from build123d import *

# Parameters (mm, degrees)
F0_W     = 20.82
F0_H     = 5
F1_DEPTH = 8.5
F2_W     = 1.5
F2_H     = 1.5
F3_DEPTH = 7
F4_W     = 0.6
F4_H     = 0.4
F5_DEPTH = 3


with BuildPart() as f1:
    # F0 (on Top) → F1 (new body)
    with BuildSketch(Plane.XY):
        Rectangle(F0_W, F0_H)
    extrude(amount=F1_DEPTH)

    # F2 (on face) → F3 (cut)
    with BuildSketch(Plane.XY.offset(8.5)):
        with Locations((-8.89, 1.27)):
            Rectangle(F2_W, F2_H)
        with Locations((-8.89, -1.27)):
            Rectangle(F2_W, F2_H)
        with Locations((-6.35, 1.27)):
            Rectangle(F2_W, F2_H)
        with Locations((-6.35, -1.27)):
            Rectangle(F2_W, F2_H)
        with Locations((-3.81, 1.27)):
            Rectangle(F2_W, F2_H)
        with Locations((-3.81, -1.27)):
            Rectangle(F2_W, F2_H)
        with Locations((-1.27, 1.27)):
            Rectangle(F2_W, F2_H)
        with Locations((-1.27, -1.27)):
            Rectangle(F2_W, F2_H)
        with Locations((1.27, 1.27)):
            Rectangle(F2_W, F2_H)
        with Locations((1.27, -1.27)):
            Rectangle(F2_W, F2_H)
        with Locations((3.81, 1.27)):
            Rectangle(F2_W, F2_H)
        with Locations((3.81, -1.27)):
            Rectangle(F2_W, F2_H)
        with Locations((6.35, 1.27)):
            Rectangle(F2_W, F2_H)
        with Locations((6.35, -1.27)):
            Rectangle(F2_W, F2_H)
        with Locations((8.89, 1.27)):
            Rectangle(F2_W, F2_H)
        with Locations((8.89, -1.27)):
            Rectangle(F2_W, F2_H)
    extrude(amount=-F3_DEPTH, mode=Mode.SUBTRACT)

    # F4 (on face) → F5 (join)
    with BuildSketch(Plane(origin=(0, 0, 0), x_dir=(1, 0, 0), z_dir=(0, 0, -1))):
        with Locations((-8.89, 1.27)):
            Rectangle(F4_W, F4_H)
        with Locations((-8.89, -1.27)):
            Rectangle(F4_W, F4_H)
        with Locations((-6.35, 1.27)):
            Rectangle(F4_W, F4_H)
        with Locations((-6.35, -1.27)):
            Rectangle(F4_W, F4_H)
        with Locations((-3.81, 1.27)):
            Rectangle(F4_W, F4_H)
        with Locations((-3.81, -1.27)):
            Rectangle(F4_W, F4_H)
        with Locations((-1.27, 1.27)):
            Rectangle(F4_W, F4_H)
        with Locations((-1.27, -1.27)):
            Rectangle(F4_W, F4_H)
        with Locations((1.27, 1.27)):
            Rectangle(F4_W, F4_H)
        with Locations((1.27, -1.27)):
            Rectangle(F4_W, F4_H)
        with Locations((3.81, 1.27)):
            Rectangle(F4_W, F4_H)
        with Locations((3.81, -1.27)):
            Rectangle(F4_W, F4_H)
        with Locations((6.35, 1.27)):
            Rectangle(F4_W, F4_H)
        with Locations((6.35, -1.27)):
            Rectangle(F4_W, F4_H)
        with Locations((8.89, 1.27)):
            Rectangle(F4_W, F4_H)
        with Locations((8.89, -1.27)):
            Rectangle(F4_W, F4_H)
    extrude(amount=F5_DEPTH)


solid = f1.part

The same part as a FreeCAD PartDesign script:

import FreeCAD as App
import Part
import Sketcher

V = App.Vector

doc = App.newDocument("Part")
body = doc.addObject("PartDesign::Body", "Body")

# Sketch on XY plane
sketch1 = body.newObject("Sketcher::SketchObject", "Sketch")
sketch1.AttachmentSupport = (doc.getObject("XY_Plane"), [""])
sketch1.MapMode = "FlatFace"
sketch1.addGeometry([
    Part.LineSegment(V(-10, 2, 0), V(-10, -2, 0)),
    Part.LineSegment(V(-10, -2, 0), V(10, -2, 0)),
    Part.LineSegment(V(10, -2, 0), V(10, 2, 0)),
    Part.LineSegment(V(10, 2, 0), V(-10, 2, 0)),
], False)
sketch1.addConstraint([
    Sketcher.Constraint("Coincident", 0, 2, 1, 1),
    Sketcher.Constraint("Coincident", 1, 2, 2, 1),
    Sketcher.Constraint("Coincident", 2, 2, 3, 1),
    Sketcher.Constraint("Coincident", 3, 2, 0, 1),
    Sketcher.Constraint("Vertical", 0),
    Sketcher.Constraint("Horizontal", 1),
    Sketcher.Constraint("Vertical", 2),
    Sketcher.Constraint("Horizontal", 3),
    Sketcher.Constraint("Symmetric", 0, 2, 2, 2, -1, 1),
    Sketcher.Constraint("DistanceY", 0, 2, 0, 1, 5.0),
    Sketcher.Constraint("DistanceX", 1, 1, 1, 2, 20.82),
])
pad1 = body.newObject("PartDesign::Pad", "Pad")
pad1.Profile = sketch1
pad1.Length = 8.5

# Sketch on XY plane
sketch2 = body.newObject("Sketcher::SketchObject", "Sketch001")
sketch2.AttachmentSupport = (doc.getObject("XY_Plane"), [""])
sketch2.MapMode = "FlatFace"
sketch2.AttachmentOffset = App.Placement(V(0, 0, 8.5), App.Rotation())
sketch2.addGeometry([
    Part.LineSegment(V(-9.6, 2, 0), V(-9.6, 0.5, 0)),  # 0
    Part.LineSegment(V(-9.6, 0.5, 0), V(-8.1, 0.5, 0)),  # 1
    Part.LineSegment(V(-8.1, 0.5, 0), V(-8.1, 2, 0)),  # 2
    Part.LineSegment(V(-8.1, 2, 0), V(-9.6, 2, 0)),  # 3
    Part.LineSegment(V(-9.6, -0.5, 0), V(-9.6, -2, 0)),  # 4
    Part.LineSegment(V(-9.6, -2, 0), V(-8.1, -2, 0)),  # 5
    Part.LineSegment(V(-8.1, -2, 0), V(-8.1, -0.5, 0)),  # 6
    Part.LineSegment(V(-8.1, -0.5, 0), V(-9.6, -0.5, 0)),  # 7
    Part.LineSegment(V(-7.1, 2, 0), V(-7.1, 0.5, 0)),  # 8
    Part.LineSegment(V(-7.1, 0.5, 0), V(-5.6, 0.5, 0)),  # 9
    Part.LineSegment(V(-5.6, 0.5, 0), V(-5.6, 2, 0)),  # 10
    Part.LineSegment(V(-5.6, 2, 0), V(-7.1, 2, 0)),  # 11
    Part.LineSegment(V(-7.1, -0.5, 0), V(-7.1, -2, 0)),  # 12
    Part.LineSegment(V(-7.1, -2, 0), V(-5.6, -2, 0)),  # 13
    Part.LineSegment(V(-5.6, -2, 0), V(-5.6, -0.5, 0)),  # 14
    Part.LineSegment(V(-5.6, -0.5, 0), V(-7.1, -0.5, 0)),  # 15
    Part.LineSegment(V(-4.6, 2, 0), V(-4.6, 0.5, 0)),  # 16
    Part.LineSegment(V(-4.6, 0.5, 0), V(-3.1, 0.5, 0)),  # 17
    Part.LineSegment(V(-3.1, 0.5, 0), V(-3.1, 2, 0)),  # 18
    Part.LineSegment(V(-3.1, 2, 0), V(-4.6, 2, 0)),  # 19
    Part.LineSegment(V(-4.6, -0.5, 0), V(-4.6, -2, 0)),  # 20
    Part.LineSegment(V(-4.6, -2, 0), V(-3.1, -2, 0)),  # 21
    Part.LineSegment(V(-3.1, -2, 0), V(-3.1, -0.5, 0)),  # 22
    Part.LineSegment(V(-3.1, -0.5, 0), V(-4.6, -0.5, 0)),  # 23
    Part.LineSegment(V(-2, 2, 0), V(-2, 0.5, 0)),  # 24
    Part.LineSegment(V(-2, 0.5, 0), V(-0.5, 0.5, 0)),  # 25
    Part.LineSegment(V(-0.5, 0.5, 0), V(-0.5, 2, 0)),  # 26
    Part.LineSegment(V(-0.5, 2, 0), V(-2, 2, 0)),  # 27
    Part.LineSegment(V(-2, -0.5, 0), V(-2, -2, 0)),  # 28
    Part.LineSegment(V(-2, -2, 0), V(-0.5, -2, 0)),  # 29
    Part.LineSegment(V(-0.5, -2, 0), V(-0.5, -0.5, 0)),  # 30
    Part.LineSegment(V(-0.5, -0.5, 0), V(-2, -0.5, 0)),  # 31
    Part.LineSegment(V(0.5, 2, 0), V(0.5, 0.5, 0)),  # 32
    Part.LineSegment(V(0.5, 0.5, 0), V(2, 0.5, 0)),  # 33
    Part.LineSegment(V(2, 0.5, 0), V(2, 2, 0)),  # 34
    Part.LineSegment(V(2, 2, 0), V(0.5, 2, 0)),  # 35
    Part.LineSegment(V(0.5, -0.5, 0), V(0.5, -2, 0)),  # 36
    Part.LineSegment(V(0.5, -2, 0), V(2, -2, 0)),  # 37
    Part.LineSegment(V(2, -2, 0), V(2, -0.5, 0)),  # 38
    Part.LineSegment(V(2, -0.5, 0), V(0.5, -0.5, 0)),  # 39
    Part.LineSegment(V(3.1, 2, 0), V(3.1, 0.5, 0)),  # 40
    Part.LineSegment(V(3.1, 0.5, 0), V(4.6, 0.5, 0)),  # 41
    Part.LineSegment(V(4.6, 0.5, 0), V(4.6, 2, 0)),  # 42
    Part.LineSegment(V(4.6, 2, 0), V(3.1, 2, 0)),  # 43
    Part.LineSegment(V(3.1, -0.5, 0), V(3.1, -2, 0)),  # 44
    Part.LineSegment(V(3.1, -2, 0), V(4.6, -2, 0)),  # 45
    Part.LineSegment(V(4.6, -2, 0), V(4.6, -0.5, 0)),  # 46
    Part.LineSegment(V(4.6, -0.5, 0), V(3.1, -0.5, 0)),  # 47
    Part.LineSegment(V(5.6, 2, 0), V(5.6, 0.5, 0)),  # 48
    Part.LineSegment(V(5.6, 0.5, 0), V(7.1, 0.5, 0)),  # 49
    Part.LineSegment(V(7.1, 0.5, 0), V(7.1, 2, 0)),  # 50
    Part.LineSegment(V(7.1, 2, 0), V(5.6, 2, 0)),  # 51
    Part.LineSegment(V(5.6, -0.5, 0), V(5.6, -2, 0)),  # 52
    Part.LineSegment(V(5.6, -2, 0), V(7.1, -2, 0)),  # 53
    Part.LineSegment(V(7.1, -2, 0), V(7.1, -0.5, 0)),  # 54
    Part.LineSegment(V(7.1, -0.5, 0), V(5.6, -0.5, 0)),  # 55
    Part.LineSegment(V(8.1, 2, 0), V(8.1, 0.5, 0)),  # 56
    Part.LineSegment(V(8.1, 0.5, 0), V(9.6, 0.5, 0)),  # 57
    Part.LineSegment(V(9.6, 0.5, 0), V(9.6, 2, 0)),  # 58
    Part.LineSegment(V(9.6, 2, 0), V(8.1, 2, 0)),  # 59
    Part.LineSegment(V(8.1, -0.5, 0), V(8.1, -2, 0)),  # 60
    Part.LineSegment(V(8.1, -2, 0), V(9.6, -2, 0)),  # 61
    Part.LineSegment(V(9.6, -2, 0), V(9.6, -0.5, 0)),  # 62
    Part.LineSegment(V(9.6, -0.5, 0), V(8.1, -0.5, 0)),  # 63
], False)
sketch2.addConstraint([
    Sketcher.Constraint("Coincident", 0, 2, 1, 1),
    Sketcher.Constraint("Coincident", 1, 2, 2, 1),
    Sketcher.Constraint("Coincident", 2, 2, 3, 1),
    Sketcher.Constraint("Coincident", 3, 2, 0, 1),
    Sketcher.Constraint("Coincident", 4, 2, 5, 1),
    Sketcher.Constraint("Coincident", 5, 2, 6, 1),
    Sketcher.Constraint("Coincident", 6, 2, 7, 1),
    Sketcher.Constraint("Coincident", 7, 2, 4, 1),
    Sketcher.Constraint("Coincident", 8, 2, 9, 1),
    Sketcher.Constraint("Coincident", 9, 2, 10, 1),
    Sketcher.Constraint("Coincident", 10, 2, 11, 1),
    Sketcher.Constraint("Coincident", 11, 2, 8, 1),
    Sketcher.Constraint("Coincident", 12, 2, 13, 1),
    Sketcher.Constraint("Coincident", 13, 2, 14, 1),
    Sketcher.Constraint("Coincident", 14, 2, 15, 1),
    Sketcher.Constraint("Coincident", 15, 2, 12, 1),
    Sketcher.Constraint("Coincident", 16, 2, 17, 1),
    Sketcher.Constraint("Coincident", 17, 2, 18, 1),
    Sketcher.Constraint("Coincident", 18, 2, 19, 1),
    Sketcher.Constraint("Coincident", 19, 2, 16, 1),
    Sketcher.Constraint("Coincident", 20, 2, 21, 1),
    Sketcher.Constraint("Coincident", 21, 2, 22, 1),
    Sketcher.Constraint("Coincident", 22, 2, 23, 1),
    Sketcher.Constraint("Coincident", 23, 2, 20, 1),
    Sketcher.Constraint("Coincident", 24, 2, 25, 1),
    Sketcher.Constraint("Coincident", 25, 2, 26, 1),
    Sketcher.Constraint("Coincident", 26, 2, 27, 1),
    Sketcher.Constraint("Coincident", 27, 2, 24, 1),
    Sketcher.Constraint("Coincident", 28, 2, 29, 1),
    Sketcher.Constraint("Coincident", 29, 2, 30, 1),
    Sketcher.Constraint("Coincident", 30, 2, 31, 1),
    Sketcher.Constraint("Coincident", 31, 2, 28, 1),
    Sketcher.Constraint("Coincident", 32, 2, 33, 1),
    Sketcher.Constraint("Coincident", 33, 2, 34, 1),
    Sketcher.Constraint("Coincident", 34, 2, 35, 1),
    Sketcher.Constraint("Coincident", 35, 2, 32, 1),
    Sketcher.Constraint("Coincident", 36, 2, 37, 1),
    Sketcher.Constraint("Coincident", 37, 2, 38, 1),
    Sketcher.Constraint("Coincident", 38, 2, 39, 1),
    Sketcher.Constraint("Coincident", 39, 2, 36, 1),
    Sketcher.Constraint("Coincident", 40, 2, 41, 1),
    Sketcher.Constraint("Coincident", 41, 2, 42, 1),
    Sketcher.Constraint("Coincident", 42, 2, 43, 1),
    Sketcher.Constraint("Coincident", 43, 2, 40, 1),
    Sketcher.Constraint("Coincident", 44, 2, 45, 1),
    Sketcher.Constraint("Coincident", 45, 2, 46, 1),
    Sketcher.Constraint("Coincident", 46, 2, 47, 1),
    Sketcher.Constraint("Coincident", 47, 2, 44, 1),
    Sketcher.Constraint("Coincident", 48, 2, 49, 1),
    Sketcher.Constraint("Coincident", 49, 2, 50, 1),
    Sketcher.Constraint("Coincident", 50, 2, 51, 1),
    Sketcher.Constraint("Coincident", 51, 2, 48, 1),
    Sketcher.Constraint("Coincident", 52, 2, 53, 1),
    Sketcher.Constraint("Coincident", 53, 2, 54, 1),
    Sketcher.Constraint("Coincident", 54, 2, 55, 1),
    Sketcher.Constraint("Coincident", 55, 2, 52, 1),
    Sketcher.Constraint("Coincident", 56, 2, 57, 1),
    Sketcher.Constraint("Coincident", 57, 2, 58, 1),
    Sketcher.Constraint("Coincident", 58, 2, 59, 1),
    Sketcher.Constraint("Coincident", 59, 2, 56, 1),
    Sketcher.Constraint("Coincident", 60, 2, 61, 1),
    Sketcher.Constraint("Coincident", 61, 2, 62, 1),
    Sketcher.Constraint("Coincident", 62, 2, 63, 1),
    Sketcher.Constraint("Coincident", 63, 2, 60, 1),
    Sketcher.Constraint("Vertical", 0),
    Sketcher.Constraint("Horizontal", 1),
    Sketcher.Constraint("Vertical", 2),
    Sketcher.Constraint("Horizontal", 3),
    Sketcher.Constraint("Vertical", 4),
    Sketcher.Constraint("Horizontal", 5),
    Sketcher.Constraint("Vertical", 6),
    Sketcher.Constraint("Horizontal", 7),
    Sketcher.Constraint("Vertical", 8),
    Sketcher.Constraint("Horizontal", 9),
    Sketcher.Constraint("Vertical", 10),
    Sketcher.Constraint("Horizontal", 11),
    Sketcher.Constraint("Vertical", 12),
    Sketcher.Constraint("Horizontal", 13),
    Sketcher.Constraint("Vertical", 14),
    Sketcher.Constraint("Horizontal", 15),
    Sketcher.Constraint("Vertical", 16),
    Sketcher.Constraint("Horizontal", 17),
    Sketcher.Constraint("Vertical", 18),
    Sketcher.Constraint("Horizontal", 19),
    Sketcher.Constraint("Vertical", 20),
    Sketcher.Constraint("Horizontal", 21),
    Sketcher.Constraint("Vertical", 22),
    Sketcher.Constraint("Horizontal", 23),
    Sketcher.Constraint("Vertical", 24),
    Sketcher.Constraint("Horizontal", 25),
    Sketcher.Constraint("Vertical", 26),
    Sketcher.Constraint("Horizontal", 27),
    Sketcher.Constraint("Vertical", 28),
    Sketcher.Constraint("Horizontal", 29),
    Sketcher.Constraint("Vertical", 30),
    Sketcher.Constraint("Horizontal", 31),
    Sketcher.Constraint("Vertical", 32),
    Sketcher.Constraint("Horizontal", 33),
    Sketcher.Constraint("Vertical", 34),
    Sketcher.Constraint("Horizontal", 35),
    Sketcher.Constraint("Vertical", 36),
    Sketcher.Constraint("Horizontal", 37),
    Sketcher.Constraint("Vertical", 38),
    Sketcher.Constraint("Horizontal", 39),
    Sketcher.Constraint("Vertical", 40),
    Sketcher.Constraint("Horizontal", 41),
    Sketcher.Constraint("Vertical", 42),
    Sketcher.Constraint("Horizontal", 43),
    Sketcher.Constraint("Vertical", 44),
    Sketcher.Constraint("Horizontal", 45),
    Sketcher.Constraint("Vertical", 46),
    Sketcher.Constraint("Horizontal", 47),
    Sketcher.Constraint("Vertical", 48),
    Sketcher.Constraint("Horizontal", 49),
    Sketcher.Constraint("Vertical", 50),
    Sketcher.Constraint("Horizontal", 51),
    Sketcher.Constraint("Vertical", 52),
    Sketcher.Constraint("Horizontal", 53),
    Sketcher.Constraint("Vertical", 54),
    Sketcher.Constraint("Horizontal", 55),
    Sketcher.Constraint("Vertical", 56),
    Sketcher.Constraint("Horizontal", 57),
    Sketcher.Constraint("Vertical", 58),
    Sketcher.Constraint("Horizontal", 59),
    Sketcher.Constraint("Vertical", 60),
    Sketcher.Constraint("Horizontal", 61),
    Sketcher.Constraint("Vertical", 62),
    Sketcher.Constraint("Horizontal", 63),
    Sketcher.Constraint("Symmetric", 30, 2, 32, 2, -1, 1),
    Sketcher.Constraint("Symmetric", 28, 2, 34, 2, -1, 1),
    Sketcher.Constraint("Symmetric", 26, 2, 36, 2, -1, 1),
    Sketcher.Constraint("Symmetric", 24, 2, 38, 2, -1, 1),
    Sketcher.Constraint("Symmetric", 22, 2, 40, 2, -1, 1),
    Sketcher.Constraint("Symmetric", 20, 2, 42, 2, -1, 1),
    Sketcher.Constraint("Symmetric", 18, 2, 44, 2, -1, 1),
    Sketcher.Constraint("Symmetric", 16, 2, 46, 2, -1, 1),
    Sketcher.Constraint("Symmetric", 14, 2, 48, 2, -1, 1),
    Sketcher.Constraint("Symmetric", 12, 2, 50, 2, -1, 1),
    Sketcher.Constraint("Symmetric", 10, 2, 52, 2, -1, 1),
    Sketcher.Constraint("Symmetric", 8, 2, 54, 2, -1, 1),
    Sketcher.Constraint("Symmetric", 6, 2, 56, 2, -1, 1),
    Sketcher.Constraint("Symmetric", 4, 2, 58, 2, -1, 1),
    Sketcher.Constraint("Symmetric", 2, 2, 60, 2, -1, 1),
    Sketcher.Constraint("Symmetric", 0, 2, 62, 2, -1, 1),
    Sketcher.Constraint("Symmetric", 25, 2, 32, 2, -2),
    Sketcher.Constraint("Symmetric", 27, 2, 34, 2, -2),
    Sketcher.Constraint("Symmetric", 17, 2, 40, 2, -2),
    Sketcher.Constraint("Symmetric", 19, 2, 42, 2, -2),
    Sketcher.Constraint("Symmetric", 9, 2, 48, 2, -2),
    Sketcher.Constraint("Symmetric", 11, 2, 50, 2, -2),
    Sketcher.Constraint("Symmetric", 1, 2, 56, 2, -2),
    Sketcher.Constraint("Symmetric", 3, 2, 58, 2, -2),
    Sketcher.Constraint("Horizontal", 1, 2, 8, 2),
    Sketcher.Constraint("Horizontal", 3, 2, 10, 2),
    Sketcher.Constraint("Horizontal", 9, 2, 16, 2),
    Sketcher.Constraint("Horizontal", 11, 2, 18, 2),
    Sketcher.Constraint("Horizontal", 17, 2, 24, 2),
    Sketcher.Constraint("Horizontal", 19, 2, 26, 2),
    Sketcher.Constraint("Equal", 7, 9),
    Sketcher.Constraint("Equal", 15, 17),
    Sketcher.Constraint("Equal", 23, 25),
    Sketcher.Constraint("Equal", 63, 0),
    Sketcher.Constraint("DistanceX", 1, 1, 1, 2, 1.5),
    Sketcher.Constraint("DistanceX", 8, 2, -1, 1, 7.1),
    Sketcher.Constraint("DistanceX", 0, 2, -1, 1, 9.64),
    Sketcher.Constraint("DistanceY", -1, 1, 0, 2, 0.52),
    Sketcher.Constraint("DistanceX", 16, 2, -1, 1, 4.56),
    Sketcher.Constraint("DistanceX", 24, 2, -1, 1, 2.02),
])
pocket1 = body.newObject("PartDesign::Pocket", "Pocket")
pocket1.Profile = sketch2
pocket1.Length = 7

# Sketch on XY plane
sketch3 = body.newObject("Sketcher::SketchObject", "Sketch002")
sketch3.AttachmentSupport = (doc.getObject("XY_Plane"), [""])
sketch3.MapMode = "FlatFace"
sketch3.addGeometry([
    Part.LineSegment(V(-9.19, -1.47, 0), V(-9.19, -1.07, 0)),  # 0
    Part.LineSegment(V(-9.19, -1.07, 0), V(-8.59, -1.07, 0)),  # 1
    Part.LineSegment(V(-8.59, -1.07, 0), V(-8.59, -1.47, 0)),  # 2
    Part.LineSegment(V(-8.59, -1.47, 0), V(-9.19, -1.47, 0)),  # 3
    Part.LineSegment(V(-9.19, 1.07, 0), V(-9.19, 1.47, 0)),  # 4
    Part.LineSegment(V(-9.19, 1.47, 0), V(-8.59, 1.47, 0)),  # 5
    Part.LineSegment(V(-8.59, 1.47, 0), V(-8.59, 1.07, 0)),  # 6
    Part.LineSegment(V(-8.59, 1.07, 0), V(-9.19, 1.07, 0)),  # 7
    Part.LineSegment(V(-6.65, -1.47, 0), V(-6.65, -1.07, 0)),  # 8
    Part.LineSegment(V(-6.65, -1.07, 0), V(-6.05, -1.07, 0)),  # 9
    Part.LineSegment(V(-6.05, -1.07, 0), V(-6.05, -1.47, 0)),  # 10
    Part.LineSegment(V(-6.05, -1.47, 0), V(-6.65, -1.47, 0)),  # 11
    Part.LineSegment(V(-6.65, 1.07, 0), V(-6.65, 1.47, 0)),  # 12
    Part.LineSegment(V(-6.65, 1.47, 0), V(-6.05, 1.47, 0)),  # 13
    Part.LineSegment(V(-6.05, 1.47, 0), V(-6.05, 1.07, 0)),  # 14
    Part.LineSegment(V(-6.05, 1.07, 0), V(-6.65, 1.07, 0)),  # 15
    Part.LineSegment(V(-4.11, -1.47, 0), V(-4.11, -1.07, 0)),  # 16
    Part.LineSegment(V(-4.11, -1.07, 0), V(-3.51, -1.07, 0)),  # 17
    Part.LineSegment(V(-3.51, -1.07, 0), V(-3.51, -1.47, 0)),  # 18
    Part.LineSegment(V(-3.51, -1.47, 0), V(-4.11, -1.47, 0)),  # 19
    Part.LineSegment(V(-4.11, 1.07, 0), V(-4.11, 1.47, 0)),  # 20
    Part.LineSegment(V(-4.11, 1.47, 0), V(-3.51, 1.47, 0)),  # 21
    Part.LineSegment(V(-3.51, 1.47, 0), V(-3.51, 1.07, 0)),  # 22
    Part.LineSegment(V(-3.51, 1.07, 0), V(-4.11, 1.07, 0)),  # 23
    Part.LineSegment(V(-1.57, -1.47, 0), V(-1.57, -1.07, 0)),  # 24
    Part.LineSegment(V(-1.57, -1.07, 0), V(-0.97, -1.07, 0)),  # 25
    Part.LineSegment(V(-0.97, -1.07, 0), V(-0.97, -1.47, 0)),  # 26
    Part.LineSegment(V(-0.97, -1.47, 0), V(-1.57, -1.47, 0)),  # 27
    Part.LineSegment(V(-1.57, 1.07, 0), V(-1.57, 1.47, 0)),  # 28
    Part.LineSegment(V(-1.57, 1.47, 0), V(-0.97, 1.47, 0)),  # 29
    Part.LineSegment(V(-0.97, 1.47, 0), V(-0.97, 1.07, 0)),  # 30
    Part.LineSegment(V(-0.97, 1.07, 0), V(-1.57, 1.07, 0)),  # 31
    Part.LineSegment(V(0.97, -1.47, 0), V(0.97, -1.07, 0)),  # 32
    Part.LineSegment(V(0.97, -1.07, 0), V(1.57, -1.07, 0)),  # 33
    Part.LineSegment(V(1.57, -1.07, 0), V(1.57, -1.47, 0)),  # 34
    Part.LineSegment(V(1.57, -1.47, 0), V(0.97, -1.47, 0)),  # 35
    Part.LineSegment(V(0.97, 1.07, 0), V(0.97, 1.47, 0)),  # 36
    Part.LineSegment(V(0.97, 1.47, 0), V(1.57, 1.47, 0)),  # 37
    Part.LineSegment(V(1.57, 1.47, 0), V(1.57, 1.07, 0)),  # 38
    Part.LineSegment(V(1.57, 1.07, 0), V(0.97, 1.07, 0)),  # 39
    Part.LineSegment(V(3.51, -1.47, 0), V(3.51, -1.07, 0)),  # 40
    Part.LineSegment(V(3.51, -1.07, 0), V(4.11, -1.07, 0)),  # 41
    Part.LineSegment(V(4.11, -1.07, 0), V(4.11, -1.47, 0)),  # 42
    Part.LineSegment(V(4.11, -1.47, 0), V(3.51, -1.47, 0)),  # 43
    Part.LineSegment(V(3.51, 1.07, 0), V(3.51, 1.47, 0)),  # 44
    Part.LineSegment(V(3.51, 1.47, 0), V(4.11, 1.47, 0)),  # 45
    Part.LineSegment(V(4.11, 1.47, 0), V(4.11, 1.07, 0)),  # 46
    Part.LineSegment(V(4.11, 1.07, 0), V(3.51, 1.07, 0)),  # 47
    Part.LineSegment(V(6.05, -1.47, 0), V(6.05, -1.07, 0)),  # 48
    Part.LineSegment(V(6.05, -1.07, 0), V(6.65, -1.07, 0)),  # 49
    Part.LineSegment(V(6.65, -1.07, 0), V(6.65, -1.47, 0)),  # 50
    Part.LineSegment(V(6.65, -1.47, 0), V(6.05, -1.47, 0)),  # 51
    Part.LineSegment(V(6.05, 1.07, 0), V(6.05, 1.47, 0)),  # 52
    Part.LineSegment(V(6.05, 1.47, 0), V(6.65, 1.47, 0)),  # 53
    Part.LineSegment(V(6.65, 1.47, 0), V(6.65, 1.07, 0)),  # 54
    Part.LineSegment(V(6.65, 1.07, 0), V(6.05, 1.07, 0)),  # 55
    Part.LineSegment(V(8.59, -1.47, 0), V(8.59, -1.07, 0)),  # 56
    Part.LineSegment(V(8.59, -1.07, 0), V(9.19, -1.07, 0)),  # 57
    Part.LineSegment(V(9.19, -1.07, 0), V(9.19, -1.47, 0)),  # 58
    Part.LineSegment(V(9.19, -1.47, 0), V(8.59, -1.47, 0)),  # 59
    Part.LineSegment(V(8.59, 1.07, 0), V(8.59, 1.47, 0)),  # 60
    Part.LineSegment(V(8.59, 1.47, 0), V(9.19, 1.47, 0)),  # 61
    Part.LineSegment(V(9.19, 1.47, 0), V(9.19, 1.07, 0)),  # 62
    Part.LineSegment(V(9.19, 1.07, 0), V(8.59, 1.07, 0)),  # 63
], False)
sketch3.addConstraint([
    Sketcher.Constraint("Coincident", 0, 2, 1, 1),
    Sketcher.Constraint("Coincident", 1, 2, 2, 1),
    Sketcher.Constraint("Coincident", 2, 2, 3, 1),
    Sketcher.Constraint("Coincident", 3, 2, 0, 1),
    Sketcher.Constraint("Coincident", 4, 2, 5, 1),
    Sketcher.Constraint("Coincident", 5, 2, 6, 1),
    Sketcher.Constraint("Coincident", 6, 2, 7, 1),
    Sketcher.Constraint("Coincident", 7, 2, 4, 1),
    Sketcher.Constraint("Coincident", 8, 2, 9, 1),
    Sketcher.Constraint("Coincident", 9, 2, 10, 1),
    Sketcher.Constraint("Coincident", 10, 2, 11, 1),
    Sketcher.Constraint("Coincident", 11, 2, 8, 1),
    Sketcher.Constraint("Coincident", 12, 2, 13, 1),
    Sketcher.Constraint("Coincident", 13, 2, 14, 1),
    Sketcher.Constraint("Coincident", 14, 2, 15, 1),
    Sketcher.Constraint("Coincident", 15, 2, 12, 1),
    Sketcher.Constraint("Coincident", 16, 2, 17, 1),
    Sketcher.Constraint("Coincident", 17, 2, 18, 1),
    Sketcher.Constraint("Coincident", 18, 2, 19, 1),
    Sketcher.Constraint("Coincident", 19, 2, 16, 1),
    Sketcher.Constraint("Coincident", 20, 2, 21, 1),
    Sketcher.Constraint("Coincident", 21, 2, 22, 1),
    Sketcher.Constraint("Coincident", 22, 2, 23, 1),
    Sketcher.Constraint("Coincident", 23, 2, 20, 1),
    Sketcher.Constraint("Coincident", 24, 2, 25, 1),
    Sketcher.Constraint("Coincident", 25, 2, 26, 1),
    Sketcher.Constraint("Coincident", 26, 2, 27, 1),
    Sketcher.Constraint("Coincident", 27, 2, 24, 1),
    Sketcher.Constraint("Coincident", 28, 2, 29, 1),
    Sketcher.Constraint("Coincident", 29, 2, 30, 1),
    Sketcher.Constraint("Coincident", 30, 2, 31, 1),
    Sketcher.Constraint("Coincident", 31, 2, 28, 1),
    Sketcher.Constraint("Coincident", 32, 2, 33, 1),
    Sketcher.Constraint("Coincident", 33, 2, 34, 1),
    Sketcher.Constraint("Coincident", 34, 2, 35, 1),
    Sketcher.Constraint("Coincident", 35, 2, 32, 1),
    Sketcher.Constraint("Coincident", 36, 2, 37, 1),
    Sketcher.Constraint("Coincident", 37, 2, 38, 1),
    Sketcher.Constraint("Coincident", 38, 2, 39, 1),
    Sketcher.Constraint("Coincident", 39, 2, 36, 1),
    Sketcher.Constraint("Coincident", 40, 2, 41, 1),
    Sketcher.Constraint("Coincident", 41, 2, 42, 1),
    Sketcher.Constraint("Coincident", 42, 2, 43, 1),
    Sketcher.Constraint("Coincident", 43, 2, 40, 1),
    Sketcher.Constraint("Coincident", 44, 2, 45, 1),
    Sketcher.Constraint("Coincident", 45, 2, 46, 1),
    Sketcher.Constraint("Coincident", 46, 2, 47, 1),
    Sketcher.Constraint("Coincident", 47, 2, 44, 1),
    Sketcher.Constraint("Coincident", 48, 2, 49, 1),
    Sketcher.Constraint("Coincident", 49, 2, 50, 1),
    Sketcher.Constraint("Coincident", 50, 2, 51, 1),
    Sketcher.Constraint("Coincident", 51, 2, 48, 1),
    Sketcher.Constraint("Coincident", 52, 2, 53, 1),
    Sketcher.Constraint("Coincident", 53, 2, 54, 1),
    Sketcher.Constraint("Coincident", 54, 2, 55, 1),
    Sketcher.Constraint("Coincident", 55, 2, 52, 1),
    Sketcher.Constraint("Coincident", 56, 2, 57, 1),
    Sketcher.Constraint("Coincident", 57, 2, 58, 1),
    Sketcher.Constraint("Coincident", 58, 2, 59, 1),
    Sketcher.Constraint("Coincident", 59, 2, 56, 1),
    Sketcher.Constraint("Coincident", 60, 2, 61, 1),
    Sketcher.Constraint("Coincident", 61, 2, 62, 1),
    Sketcher.Constraint("Coincident", 62, 2, 63, 1),
    Sketcher.Constraint("Coincident", 63, 2, 60, 1),
    Sketcher.Constraint("Vertical", 0),
    Sketcher.Constraint("Horizontal", 1),
    Sketcher.Constraint("Vertical", 2),
    Sketcher.Constraint("Horizontal", 3),
    Sketcher.Constraint("Vertical", 4),
    Sketcher.Constraint("Horizontal", 5),
    Sketcher.Constraint("Vertical", 6),
    Sketcher.Constraint("Horizontal", 7),
    Sketcher.Constraint("Vertical", 8),
    Sketcher.Constraint("Horizontal", 9),
    Sketcher.Constraint("Vertical", 10),
    Sketcher.Constraint("Horizontal", 11),
    Sketcher.Constraint("Vertical", 12),
    Sketcher.Constraint("Horizontal", 13),
    Sketcher.Constraint("Vertical", 14),
    Sketcher.Constraint("Horizontal", 15),
    Sketcher.Constraint("Vertical", 16),
    Sketcher.Constraint("Horizontal", 17),
    Sketcher.Constraint("Vertical", 18),
    Sketcher.Constraint("Horizontal", 19),
    Sketcher.Constraint("Vertical", 20),
    Sketcher.Constraint("Horizontal", 21),
    Sketcher.Constraint("Vertical", 22),
    Sketcher.Constraint("Horizontal", 23),
    Sketcher.Constraint("Vertical", 24),
    Sketcher.Constraint("Horizontal", 25),
    Sketcher.Constraint("Vertical", 26),
    Sketcher.Constraint("Horizontal", 27),
    Sketcher.Constraint("Vertical", 28),
    Sketcher.Constraint("Horizontal", 29),
    Sketcher.Constraint("Vertical", 30),
    Sketcher.Constraint("Horizontal", 31),
    Sketcher.Constraint("Vertical", 32),
    Sketcher.Constraint("Horizontal", 33),
    Sketcher.Constraint("Vertical", 34),
    Sketcher.Constraint("Horizontal", 35),
    Sketcher.Constraint("Vertical", 36),
    Sketcher.Constraint("Horizontal", 37),
    Sketcher.Constraint("Vertical", 38),
    Sketcher.Constraint("Horizontal", 39),
    Sketcher.Constraint("Vertical", 40),
    Sketcher.Constraint("Horizontal", 41),
    Sketcher.Constraint("Vertical", 42),
    Sketcher.Constraint("Horizontal", 43),
    Sketcher.Constraint("Vertical", 44),
    Sketcher.Constraint("Horizontal", 45),
    Sketcher.Constraint("Vertical", 46),
    Sketcher.Constraint("Horizontal", 47),
    Sketcher.Constraint("Vertical", 48),
    Sketcher.Constraint("Horizontal", 49),
    Sketcher.Constraint("Vertical", 50),
    Sketcher.Constraint("Horizontal", 51),
    Sketcher.Constraint("Vertical", 52),
    Sketcher.Constraint("Horizontal", 53),
    Sketcher.Constraint("Vertical", 54),
    Sketcher.Constraint("Horizontal", 55),
    Sketcher.Constraint("Vertical", 56),
    Sketcher.Constraint("Horizontal", 57),
    Sketcher.Constraint("Vertical", 58),
    Sketcher.Constraint("Horizontal", 59),
    Sketcher.Constraint("Vertical", 60),
    Sketcher.Constraint("Horizontal", 61),
    Sketcher.Constraint("Vertical", 62),
    Sketcher.Constraint("Horizontal", 63),
    Sketcher.Constraint("Symmetric", 30, 2, 32, 2, -1, 1),
    Sketcher.Constraint("Symmetric", 28, 2, 34, 2, -1, 1),
    Sketcher.Constraint("Symmetric", 26, 2, 36, 2, -1, 1),
    Sketcher.Constraint("Symmetric", 24, 2, 38, 2, -1, 1),
    Sketcher.Constraint("Symmetric", 22, 2, 40, 2, -1, 1),
    Sketcher.Constraint("Symmetric", 20, 2, 42, 2, -1, 1),
    Sketcher.Constraint("Symmetric", 18, 2, 44, 2, -1, 1),
    Sketcher.Constraint("Symmetric", 16, 2, 46, 2, -1, 1),
    Sketcher.Constraint("Symmetric", 14, 2, 48, 2, -1, 1),
    Sketcher.Constraint("Symmetric", 12, 2, 50, 2, -1, 1),
    Sketcher.Constraint("Symmetric", 10, 2, 52, 2, -1, 1),
    Sketcher.Constraint("Symmetric", 8, 2, 54, 2, -1, 1),
    Sketcher.Constraint("Symmetric", 6, 2, 56, 2, -1, 1),
    Sketcher.Constraint("Symmetric", 4, 2, 58, 2, -1, 1),
    Sketcher.Constraint("Symmetric", 2, 2, 60, 2, -1, 1),
    Sketcher.Constraint("Symmetric", 0, 2, 62, 2, -1, 1),
    Sketcher.Constraint("Symmetric", 25, 2, 32, 2, -2),
    Sketcher.Constraint("Symmetric", 27, 2, 34, 2, -2),
    Sketcher.Constraint("Symmetric", 17, 2, 40, 2, -2),
    Sketcher.Constraint("Symmetric", 19, 2, 42, 2, -2),
    Sketcher.Constraint("Symmetric", 9, 2, 48, 2, -2),
    Sketcher.Constraint("Symmetric", 11, 2, 50, 2, -2),
    Sketcher.Constraint("Symmetric", 1, 2, 56, 2, -2),
    Sketcher.Constraint("Symmetric", 3, 2, 58, 2, -2),
    Sketcher.Constraint("Horizontal", 1, 2, 8, 2),
    Sketcher.Constraint("Horizontal", 3, 2, 10, 2),
    Sketcher.Constraint("Horizontal", 9, 2, 16, 2),
    Sketcher.Constraint("Horizontal", 11, 2, 18, 2),
    Sketcher.Constraint("Horizontal", 17, 2, 24, 2),
    Sketcher.Constraint("Horizontal", 19, 2, 26, 2),
    Sketcher.Constraint("Equal", 7, 9),
    Sketcher.Constraint("Equal", 15, 17),
    Sketcher.Constraint("Equal", 23, 25),
    Sketcher.Constraint("DistanceX", 1, 1, 1, 2, 0.6),
    Sketcher.Constraint("DistanceY", 0, 1, 0, 2, 0.4),
    Sketcher.Constraint("DistanceX", 0, 2, -1, 1, 9.19),
    Sketcher.Constraint("DistanceY", 0, 2, -1, 1, 1.07),
    Sketcher.Constraint("DistanceX", 8, 2, -1, 1, 6.65),
    Sketcher.Constraint("DistanceX", 16, 2, -1, 1, 4.11),
    Sketcher.Constraint("DistanceX", 24, 2, -1, 1, 1.57),
])
pad2 = body.newObject("PartDesign::Pad", "Pad001")
pad2.Profile = sketch3
pad2.Length = 3
pad2.Reversed = True

doc.recompute()
